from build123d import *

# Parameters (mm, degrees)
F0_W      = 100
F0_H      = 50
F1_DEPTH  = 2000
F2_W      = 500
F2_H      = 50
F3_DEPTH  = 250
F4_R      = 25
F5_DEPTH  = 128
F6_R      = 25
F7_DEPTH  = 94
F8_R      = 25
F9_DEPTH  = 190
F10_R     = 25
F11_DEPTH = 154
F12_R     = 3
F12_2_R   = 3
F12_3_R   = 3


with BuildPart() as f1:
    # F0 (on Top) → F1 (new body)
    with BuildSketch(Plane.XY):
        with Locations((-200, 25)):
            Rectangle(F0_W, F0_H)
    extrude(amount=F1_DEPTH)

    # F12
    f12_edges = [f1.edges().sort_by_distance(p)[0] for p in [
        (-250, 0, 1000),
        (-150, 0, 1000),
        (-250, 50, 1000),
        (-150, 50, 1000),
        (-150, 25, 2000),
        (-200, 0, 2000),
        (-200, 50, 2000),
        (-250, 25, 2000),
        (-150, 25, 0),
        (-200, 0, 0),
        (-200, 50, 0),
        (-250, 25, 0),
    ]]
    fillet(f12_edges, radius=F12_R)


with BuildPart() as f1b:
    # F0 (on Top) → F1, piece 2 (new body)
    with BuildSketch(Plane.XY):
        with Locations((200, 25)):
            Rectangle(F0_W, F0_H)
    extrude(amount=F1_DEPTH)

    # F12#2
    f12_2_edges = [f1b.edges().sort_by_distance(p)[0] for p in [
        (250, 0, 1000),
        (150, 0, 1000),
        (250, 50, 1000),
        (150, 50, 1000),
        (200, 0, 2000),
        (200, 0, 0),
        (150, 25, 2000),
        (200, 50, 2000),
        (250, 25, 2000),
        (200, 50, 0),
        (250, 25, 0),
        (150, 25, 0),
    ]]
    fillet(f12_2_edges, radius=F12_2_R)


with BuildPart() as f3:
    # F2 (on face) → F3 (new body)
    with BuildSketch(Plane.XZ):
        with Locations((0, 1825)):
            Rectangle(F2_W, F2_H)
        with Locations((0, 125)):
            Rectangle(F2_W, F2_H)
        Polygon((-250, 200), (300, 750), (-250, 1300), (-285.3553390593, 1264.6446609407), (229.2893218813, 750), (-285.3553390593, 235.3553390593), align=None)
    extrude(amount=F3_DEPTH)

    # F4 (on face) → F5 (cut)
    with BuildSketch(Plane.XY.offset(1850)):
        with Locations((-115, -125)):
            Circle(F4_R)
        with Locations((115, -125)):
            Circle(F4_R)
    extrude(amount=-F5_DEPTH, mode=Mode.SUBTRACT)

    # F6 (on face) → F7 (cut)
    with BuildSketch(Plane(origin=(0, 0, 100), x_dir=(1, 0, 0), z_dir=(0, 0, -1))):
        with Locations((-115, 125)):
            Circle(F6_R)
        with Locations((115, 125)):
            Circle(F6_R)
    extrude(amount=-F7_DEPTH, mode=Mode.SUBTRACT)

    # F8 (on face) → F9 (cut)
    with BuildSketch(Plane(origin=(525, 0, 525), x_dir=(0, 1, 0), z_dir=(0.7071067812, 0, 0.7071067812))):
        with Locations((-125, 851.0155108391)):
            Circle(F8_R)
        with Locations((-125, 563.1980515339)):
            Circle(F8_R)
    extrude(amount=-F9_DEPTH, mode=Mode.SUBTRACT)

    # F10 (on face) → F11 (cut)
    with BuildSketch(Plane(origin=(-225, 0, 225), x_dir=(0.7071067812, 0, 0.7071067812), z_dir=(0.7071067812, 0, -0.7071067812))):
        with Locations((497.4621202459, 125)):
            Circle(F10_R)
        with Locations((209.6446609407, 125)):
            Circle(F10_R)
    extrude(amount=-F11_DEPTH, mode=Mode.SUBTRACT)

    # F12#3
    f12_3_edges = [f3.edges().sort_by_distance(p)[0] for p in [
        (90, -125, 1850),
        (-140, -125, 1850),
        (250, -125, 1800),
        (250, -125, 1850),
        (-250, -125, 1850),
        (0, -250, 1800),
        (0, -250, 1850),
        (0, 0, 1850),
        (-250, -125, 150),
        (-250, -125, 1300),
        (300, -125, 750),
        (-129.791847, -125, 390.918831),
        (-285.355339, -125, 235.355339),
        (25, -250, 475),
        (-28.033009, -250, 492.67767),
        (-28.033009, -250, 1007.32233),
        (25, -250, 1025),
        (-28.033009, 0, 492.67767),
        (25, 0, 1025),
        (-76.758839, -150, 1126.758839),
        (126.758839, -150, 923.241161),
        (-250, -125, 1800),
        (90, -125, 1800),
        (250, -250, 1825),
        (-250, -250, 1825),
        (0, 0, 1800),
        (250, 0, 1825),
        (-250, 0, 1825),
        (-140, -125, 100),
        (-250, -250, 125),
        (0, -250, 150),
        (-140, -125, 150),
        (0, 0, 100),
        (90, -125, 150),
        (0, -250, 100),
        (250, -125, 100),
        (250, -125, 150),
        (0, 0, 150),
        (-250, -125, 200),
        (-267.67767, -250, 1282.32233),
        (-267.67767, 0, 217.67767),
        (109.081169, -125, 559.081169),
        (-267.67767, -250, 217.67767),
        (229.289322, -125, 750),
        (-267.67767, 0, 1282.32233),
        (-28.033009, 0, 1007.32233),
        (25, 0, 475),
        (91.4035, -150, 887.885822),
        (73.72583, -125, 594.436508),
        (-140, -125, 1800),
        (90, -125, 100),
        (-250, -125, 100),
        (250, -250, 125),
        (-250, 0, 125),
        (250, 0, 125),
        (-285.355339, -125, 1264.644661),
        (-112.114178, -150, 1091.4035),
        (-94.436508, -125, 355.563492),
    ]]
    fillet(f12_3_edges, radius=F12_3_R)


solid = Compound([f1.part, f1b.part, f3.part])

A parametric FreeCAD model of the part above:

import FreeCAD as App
import Part
import Sketcher

V = App.Vector


def add_polygon(sketch, points):
    """Adds a closed chain of lines whose ends are joined by coincident constraints."""
    first, n = sketch.GeometryCount, len(points)
    for a, b in zip(points, points[1:] + points[:1]):
        sketch.addGeometry(Part.LineSegment(App.Vector(*a, 0), App.Vector(*b, 0)), False)
    for i in range(n):
        sketch.addConstraint(Sketcher.Constraint("Coincident", first + i, 2, first + (i + 1) % n, 1))

doc = App.newDocument("Part")
body = doc.addObject("PartDesign::Body", "Body")

# Sketch on XY plane
sketch1 = body.newObject("Sketcher::SketchObject", "Sketch")
sketch1.AttachmentSupport = (doc.getObject("XY_Plane"), [""])
sketch1.MapMode = "FlatFace"
add_polygon(sketch1, [(-250, 50), (-250, 0), (-150, 0), (-150, 50)])  # lines 0-3
sketch1.addConstraint(Sketcher.Constraint("Vertical", 0))
sketch1.addConstraint(Sketcher.Constraint("Horizontal", 1))
sketch1.addConstraint(Sketcher.Constraint("Vertical", 2))
sketch1.addConstraint(Sketcher.Constraint("Horizontal", 3))
sketch1.addConstraint(Sketcher.Constraint("PointOnObject", 0, 2, -1))
sketch1.addConstraint(Sketcher.Constraint("DistanceX", 1, 1, 1, 2, 100.0))
sketch1.addConstraint(Sketcher.Constraint("DistanceY", 0, 2, 0, 1, 50.0))
sketch1.addConstraint(Sketcher.Constraint("DistanceX", 0, 2, -1, 1, 250.0))
pad1 = body.newObject("PartDesign::Pad", "Pad")
pad1.Profile = sketch1
pad1.Length = 2000
doc.recompute()

fillet = body.newObject("PartDesign::Fillet", "Fillet")
fillet.Base = (pad1, ["Edge1"])
fillet.UseAllEdges = True
fillet.Radius = 3
body2 = doc.addObject("PartDesign::Body", "Body001")

# Sketch on XY plane
sketch2 = body2.newObject("Sketcher::SketchObject", "Sketch001")
sketch2.AttachmentSupport = (doc.getObject("XY_Plane001"), [""])
sketch2.MapMode = "FlatFace"
add_polygon(sketch2, [(150, 50), (150, 0), (250, 0), (250, 50)])  # lines 0-3
sketch2.addConstraint(Sketcher.Constraint("Vertical", 0))
sketch2.addConstraint(Sketcher.Constraint("Horizontal", 1))
sketch2.addConstraint(Sketcher.Constraint("Vertical", 2))
sketch2.addConstraint(Sketcher.Constraint("Horizontal", 3))
sketch2.addConstraint(Sketcher.Constraint("PointOnObject", 0, 2, -1))
sketch2.addConstraint(Sketcher.Constraint("DistanceX", 1, 1, 1, 2, 100.0))
sketch2.addConstraint(Sketcher.Constraint("DistanceY", 0, 2, 0, 1, 50.0))
sketch2.addConstraint(Sketcher.Constraint("DistanceX", -1, 1, 0, 2, 150.0))
pad2 = body2.newObject("PartDesign::Pad", "Pad001")
pad2.Profile = sketch2
pad2.Length = 2000
doc.recompute()

fillet2 = body2.newObject("PartDesign::Fillet", "Fillet001")
fillet2.Base = (pad2, ["Edge1"])
fillet2.UseAllEdges = True
fillet2.Radius = 3
body3 = doc.addObject("PartDesign::Body", "Body002")
body3.AllowCompound = True

# Sketch on XZ plane
sketch3 = body3.newObject("Sketcher::SketchObject", "Sketch002")
sketch3.AttachmentSupport = (doc.getObject("XZ_Plane002"), [""])
sketch3.MapMode = "FlatFace"
add_polygon(sketch3, [(-250, 1850), (-250, 1800), (250, 1800), (250, 1850)])  # lines 0-3
add_polygon(sketch3, [(-250, 150), (-250, 100), (250, 100), (250, 150)])  # lines 4-7
add_polygon(sketch3, [(-250, 200), (300, 750), (-250, 1300), (-285.355339, 1264.644661), (229.289322, 750), (-285.355339, 235.355339)])  # lines 8-13
sketch3.addConstraint(Sketcher.Constraint("Vertical", 0))
sketch3.addConstraint(Sketcher.Constraint("Horizontal", 1))
sketch3.addConstraint(Sketcher.Constraint("Vertical", 2))
sketch3.addConstraint(Sketcher.Constraint("Horizontal", 3))
sketch3.addConstraint(Sketcher.Constraint("Vertical", 4))
sketch3.addConstraint(Sketcher.Constraint("Horizontal", 5))
sketch3.addConstraint(Sketcher.Constraint("Vertical", 6))
sketch3.addConstraint(Sketcher.Constraint("Horizontal", 7))
sketch3.addConstraint(Sketcher.Constraint("Perpendicular", 8, 9))
sketch3.addConstraint(Sketcher.Constraint("Perpendicular", 9, 10))
sketch3.addConstraint(Sketcher.Constraint("Perpendicular", 10, 11))
sketch3.addConstraint(Sketcher.Constraint("Perpendicular", 11, 12))
sketch3.addConstraint(Sketcher.Constraint("Perpendicular", 12, 13))
sketch3.addConstraint(Sketcher.Constraint("Horizontal", 8, 2, 11, 2))
sketch3.addConstraint(Sketcher.Constraint("Vertical", 3, 2, 4, 2))
sketch3.addConstraint(Sketcher.Constraint("Vertical", 2, 2, 5, 2))
sketch3.addConstraint(Sketcher.Constraint("Vertical", 7, 2, 9, 2))
sketch3.addConstraint(Sketcher.Constraint("Vertical", 10, 2, 12, 2))
sketch3.addConstraint(Sketcher.Constraint("Vertical", 9, 2, 13, 2))
sketch3.addConstraint(Sketcher.Constraint("Equal", 2, 4))
sketch3.addConstraint(Sketcher.Constraint("DistanceX", 1, 1, 1, 2, 500.0))
sketch3.addConstraint(Sketcher.Constraint("DistanceY", 0, 2, 0, 1, 50.0))
sketch3.addConstraint(Sketcher.Constraint("Distance", 10, 50.0))
sketch3.addConstraint(Sketcher.Constraint("DistanceX", 0, 2, -1, 1, 250.0))
sketch3.addConstraint(Sketcher.Constraint("DistanceY", -1, 1, 0, 2, 1800.0))
sketch3.addConstraint(Sketcher.Constraint("DistanceY", -1, 1, 4, 2, 100.0))
sketch3.addConstraint(Sketcher.Constraint("DistanceX", -1, 1, 8, 2, 300.0))
sketch3.addConstraint(Sketcher.Constraint("DistanceY", -1, 1, 8, 2, 750.0))
pad3 = body3.newObject("PartDesign::Pad", "Pad002")
pad3.Profile = sketch3
pad3.Length = 250

# Sketch on XY plane
sketch4 = body3.newObject("Sketcher::SketchObject", "Sketch003")
sketch4.AttachmentSupport = (doc.getObject("XY_Plane002"), [""])
sketch4.MapMode = "FlatFace"
sketch4.AttachmentOffset = App.Placement(V(0, 0, 1850), App.Rotation())
sketch4.addGeometry(Part.Circle(V(-115, -125, 0), V(0, 0, 1), 25), False)
sketch4.addGeometry(Part.Circle(V(115, -125, 0), V(0, 0, 1), 25), False)
sketch4.addConstraint(Sketcher.Constraint("Equal", 0, 1))
sketch4.addConstraint(Sketcher.Constraint("Symmetric", 0, 3, 1, 3, -2))
sketch4.addConstraint(Sketcher.Constraint("Diameter", 0, 50.0))
sketch4.addConstraint(Sketcher.Constraint("DistanceX", 0, 3, -1, 1, 115.0))
sketch4.addConstraint(Sketcher.Constraint("DistanceY", 0, 3, -1, 1, 125.0))
pocket1 = body3.newObject("PartDesign::Pocket", "Pocket")
pocket1.Profile = sketch4
pocket1.Length = 128

# Sketch on XY plane
sketch5 = body3.newObject("Sketcher::SketchObject", "Sketch004")
sketch5.AttachmentSupport = (doc.getObject("XY_Plane002"), [""])
sketch5.MapMode = "FlatFace"
sketch5.AttachmentOffset = App.Placement(V(0, 0, 100), App.Rotation())
sketch5.addGeometry(Part.Circle(V(-115, -125, 0), V(0, 0, 1), 25), False)
sketch5.addGeometry(Part.Circle(V(115, -125, 0), V(0, 0, 1), 25), False)
sketch5.addConstraint(Sketcher.Constraint("Equal", 0, 1))
sketch5.addConstraint(Sketcher.Constraint("Symmetric", 0, 3, 1, 3, -2))
sketch5.addConstraint(Sketcher.Constraint("Diameter", 0, 50.0))
sketch5.addConstraint(Sketcher.Constraint("DistanceX", 0, 3, -1, 1, 115.0))
sketch5.addConstraint(Sketcher.Constraint("DistanceY", 0, 3, -1, 1, 125.0))
pocket2 = body3.newObject("PartDesign::Pocket", "Pocket001")
pocket2.Profile = sketch5
pocket2.Length = 94
pocket2.Reversed = True

# Sketch on an angled plane
sketch6 = body3.newObject("Sketcher::SketchObject", "Sketch005")
sketch6.Placement = App.Placement(V(525, 0, 525), App.Rotation(V(0, 1, 0), V(-0.707106781, 0, 0.707106781), V(0.707106781, 0, 0.707106781), "ZXY"))
sketch6.addGeometry(Part.Circle(V(-125, 851.01551, 0), V(0, 0, 1), 25), False)
sketch6.addGeometry(Part.Circle(V(-125, 563.198051, 0), V(0, 0, 1), 25), False)
sketch6.addConstraint(Sketcher.Constraint("Equal", 0, 1))
sketch6.addConstraint(Sketcher.Constraint("Vertical", 0, 3, 1, 3))
sketch6.addConstraint(Sketcher.Constraint("Diameter", 0, 50.0))
sketch6.addConstraint(Sketcher.Constraint("DistanceX", 0, 3, -1, 1, 125.0))
sketch6.addConstraint(Sketcher.Constraint("DistanceY", -1, 1, 0, 3, 851.01551))
sketch6.addConstraint(Sketcher.Constraint("DistanceY", -1, 1, 1, 3, 563.198051))
pocket3 = body3.newObject("PartDesign::Pocket", "Pocket002")
pocket3.Profile = sketch6
pocket3.Length = 190

# Sketch on an angled plane
sketch7 = body3.newObject("Sketcher::SketchObject", "Sketch006")
sketch7.Placement = App.Placement(V(-225, 0, 225), App.Rotation(V(0.707106781, 0, 0.707106781), V(0, -0.999999999, 0), V(0.707106781, 0, -0.707106781), "ZXY"))
sketch7.addGeometry(Part.Circle(V(497.46212, 125, 0), V(0, 0, 1), 25), False)
sketch7.addGeometry(Part.Circle(V(209.644661, 125, 0), V(0, 0, 1), 25), False)
sketch7.addConstraint(Sketcher.Constraint("Equal", 0, 1))
sketch7.addConstraint(Sketcher.Constraint("Horizontal", 0, 3, 1, 3))
sketch7.addConstraint(Sketcher.Constraint("Diameter", 0, 50.0))
sketch7.addConstraint(Sketcher.Constraint("DistanceY", -1, 1, 0, 3, 125.0))
sketch7.addConstraint(Sketcher.Constraint("DistanceX", -1, 1, 0, 3, 497.46212))
sketch7.addConstraint(Sketcher.Constraint("DistanceX", -1, 1, 1, 3, 209.644661))
pocket4 = body3.newObject("PartDesign::Pocket", "Pocket003")
pocket4.Profile = sketch7
pocket4.Length = 154
doc.recompute()

fillet3 = body3.newObject("PartDesign::Fillet", "Fillet002")
fillet3.Base = (pocket4, ["Edge1"])
fillet3.UseAllEdges = True
fillet3.Radius = 3

doc.recompute()
